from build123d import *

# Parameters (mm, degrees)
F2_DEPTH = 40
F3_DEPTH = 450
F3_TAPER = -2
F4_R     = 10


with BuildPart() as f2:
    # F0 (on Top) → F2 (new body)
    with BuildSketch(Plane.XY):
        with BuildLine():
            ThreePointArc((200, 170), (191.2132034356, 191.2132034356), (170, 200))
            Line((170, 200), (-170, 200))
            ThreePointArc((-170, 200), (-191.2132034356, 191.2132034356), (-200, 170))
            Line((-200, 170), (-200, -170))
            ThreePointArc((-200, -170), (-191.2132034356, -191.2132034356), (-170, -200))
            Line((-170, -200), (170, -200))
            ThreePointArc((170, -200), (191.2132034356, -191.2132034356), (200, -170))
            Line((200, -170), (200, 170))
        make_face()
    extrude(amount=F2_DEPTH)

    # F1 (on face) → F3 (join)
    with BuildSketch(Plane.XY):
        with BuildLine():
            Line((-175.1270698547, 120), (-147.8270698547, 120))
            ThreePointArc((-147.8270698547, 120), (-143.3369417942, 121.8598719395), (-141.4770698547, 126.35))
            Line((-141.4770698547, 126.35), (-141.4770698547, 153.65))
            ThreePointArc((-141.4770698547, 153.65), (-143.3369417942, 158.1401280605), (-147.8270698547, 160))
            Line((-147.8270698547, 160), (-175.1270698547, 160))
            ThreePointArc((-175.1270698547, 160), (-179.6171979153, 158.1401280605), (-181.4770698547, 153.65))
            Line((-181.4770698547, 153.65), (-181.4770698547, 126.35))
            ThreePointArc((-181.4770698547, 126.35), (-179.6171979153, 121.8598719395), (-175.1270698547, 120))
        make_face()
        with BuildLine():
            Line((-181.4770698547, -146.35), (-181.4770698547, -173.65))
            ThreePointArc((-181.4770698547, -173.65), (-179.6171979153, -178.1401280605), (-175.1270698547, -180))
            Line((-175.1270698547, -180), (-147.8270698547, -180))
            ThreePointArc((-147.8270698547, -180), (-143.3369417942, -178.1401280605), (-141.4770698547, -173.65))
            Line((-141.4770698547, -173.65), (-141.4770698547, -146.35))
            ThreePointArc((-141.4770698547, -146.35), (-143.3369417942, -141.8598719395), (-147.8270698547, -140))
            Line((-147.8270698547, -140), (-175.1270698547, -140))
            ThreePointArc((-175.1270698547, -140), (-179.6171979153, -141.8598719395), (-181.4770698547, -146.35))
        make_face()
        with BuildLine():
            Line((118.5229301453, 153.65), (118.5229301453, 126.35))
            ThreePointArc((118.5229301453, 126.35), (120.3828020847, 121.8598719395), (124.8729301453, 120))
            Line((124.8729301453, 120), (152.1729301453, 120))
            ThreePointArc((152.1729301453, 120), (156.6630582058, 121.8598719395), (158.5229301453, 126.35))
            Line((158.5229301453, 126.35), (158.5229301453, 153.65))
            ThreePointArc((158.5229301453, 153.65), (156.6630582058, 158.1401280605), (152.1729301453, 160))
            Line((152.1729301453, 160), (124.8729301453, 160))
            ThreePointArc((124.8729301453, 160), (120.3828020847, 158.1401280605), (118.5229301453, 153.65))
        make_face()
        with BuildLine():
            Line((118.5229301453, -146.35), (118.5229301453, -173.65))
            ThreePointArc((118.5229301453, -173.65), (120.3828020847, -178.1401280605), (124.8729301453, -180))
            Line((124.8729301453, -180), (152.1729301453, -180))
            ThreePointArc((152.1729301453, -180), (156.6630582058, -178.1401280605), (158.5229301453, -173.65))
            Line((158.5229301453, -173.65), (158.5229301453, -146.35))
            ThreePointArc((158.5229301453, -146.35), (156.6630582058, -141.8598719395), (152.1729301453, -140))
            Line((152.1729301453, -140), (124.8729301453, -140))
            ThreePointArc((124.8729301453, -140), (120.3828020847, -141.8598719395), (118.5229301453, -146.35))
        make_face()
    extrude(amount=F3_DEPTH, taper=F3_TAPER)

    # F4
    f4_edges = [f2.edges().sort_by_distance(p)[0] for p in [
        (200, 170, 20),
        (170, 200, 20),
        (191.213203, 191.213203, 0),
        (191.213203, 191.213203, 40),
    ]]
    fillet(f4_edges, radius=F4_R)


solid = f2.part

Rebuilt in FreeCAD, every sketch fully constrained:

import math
import FreeCAD as App
import Part
import Sketcher
from FreeCAD import Vector
Q = App.Units.Quantity


def edges_at(feature, points):
    """Names of the edges that pass closest to the given points."""
    edges = feature.Shape.Edges
    near = lambda p: min(range(len(edges)), key=lambda i: edges[i].distToShape(Part.Vertex(*p))[0])
    return sorted({f"Edge{near(p) + 1}" for p in points})

doc = App.newDocument("Part")
body = doc.addObject("PartDesign::Body", "Body")

# Sketch on XY plane
sketch1 = doc.addObject("Sketcher::SketchObject", "Sketch")
body.addObject(sketch1)
sketch1.AttachmentSupport = (doc.XY_Plane, [""])
sketch1.MapMode = "FlatFace"
sketch1.addGeometry(Part.ArcOfCircle(Part.Circle(Vector(170, 170, 0), Vector(0, 0, 1), 30), math.radians(0), math.radians(90)), False)
sketch1.addGeometry(Part.LineSegment(Vector(170, 200, 0), Vector(-170, 200, 0)), False)
sketch1.addGeometry(Part.ArcOfCircle(Part.Circle(Vector(-170, 170, 0), Vector(0, 0, 1), 30), math.radians(90), math.radians(180)), False)
sketch1.addGeometry(Part.LineSegment(Vector(-200, 170, 0), Vector(-200, -170, 0)), False)
sketch1.addGeometry(Part.ArcOfCircle(Part.Circle(Vector(-170, -170, 0), Vector(0, 0, 1), 30), math.radians(180), math.radians(270)), False)
sketch1.addGeometry(Part.LineSegment(Vector(-170, -200, 0), Vector(170, -200, 0)), False)
sketch1.addGeometry(Part.ArcOfCircle(Part.Circle(Vector(170, -170, 0), Vector(0, 0, 1), 30), math.radians(-90), math.radians(0)), False)
sketch1.addGeometry(Part.LineSegment(Vector(200, -170, 0), Vector(200, 170, 0)), False)
sketch1.addConstraint(Sketcher.Constraint("Tangent", 0, 2, 1, 1))
sketch1.addConstraint(Sketcher.Constraint("Tangent", 1, 2, 2, 1))
sketch1.addConstraint(Sketcher.Constraint("Tangent", 2, 2, 3, 1))
sketch1.addConstraint(Sketcher.Constraint("Tangent", 3, 2, 4, 1))
sketch1.addConstraint(Sketcher.Constraint("Tangent", 4, 2, 5, 1))
sketch1.addConstraint(Sketcher.Constraint("Tangent", 5, 2, 6, 1))
sketch1.addConstraint(Sketcher.Constraint("Tangent", 6, 2, 7, 1))
sketch1.addConstraint(Sketcher.Constraint("Tangent", 7, 2, 0, 1))
sketch1.addConstraint(Sketcher.Constraint("Horizontal", 1))
sketch1.addConstraint(Sketcher.Constraint("Vertical", 3))
sketch1.addConstraint(Sketcher.Constraint("Horizontal", 5))
sketch1.addConstraint(Sketcher.Constraint("Vertical", 7))
sketch1.addConstraint(Sketcher.Constraint("Equal", 0, 2))
sketch1.addConstraint(Sketcher.Constraint("Equal", 2, 4))
sketch1.addConstraint(Sketcher.Constraint("Equal", 4, 6))
sketch1.addConstraint(Sketcher.Constraint("Symmetric", 0, 3, 4, 3, -1, 1))
sketch1.addConstraint(Sketcher.Constraint("Equal", 5, 3))
sketch1.addConstraint(Sketcher.Constraint("Radius", 0, Q("30 mm")))
sketch1.addConstraint(Sketcher.Constraint("DistanceX", 1, 2, 1, 1, Q("340 mm")))
pad1 = doc.addObject("PartDesign::Pad", "Pad")
body.addObject(pad1)
pad1.Profile = sketch1
pad1.Length = 40

# Sketch on XY plane
sketch2 = doc.addObject("Sketcher::SketchObject", "Sketch001")
body.addObject(sketch2)
sketch2.AttachmentSupport = (doc.XY_Plane, [""])
sketch2.MapMode = "FlatFace"
sketch2.addGeometry(Part.LineSegment(Vector(-175, 120, 0), Vector(-148, 120, 0)), False)
sketch2.addGeometry(Part.ArcOfCircle(Part.Circle(Vector(-148, 126, 0), Vector(0, 0, 1), 6), math.radians(-90), math.radians(0)), False)
sketch2.addGeometry(Part.LineSegment(Vector(-141, 126, 0), Vector(-141, 154, 0)), False)
sketch2.addGeometry(Part.ArcOfCircle(Part.Circle(Vector(-148, 154, 0), Vector(0, 0, 1), 6), math.radians(0), math.radians(90)), False)
sketch2.addGeometry(Part.LineSegment(Vector(-148, 160, 0), Vector(-175, 160, 0)), False)
sketch2.addGeometry(Part.ArcOfCircle(Part.Circle(Vector(-175, 154, 0), Vector(0, 0, 1), 6), math.radians(90), math.radians(180)), False)
sketch2.addGeometry(Part.LineSegment(Vector(-181, 154, 0), Vector(-181, 126, 0)), False)
sketch2.addGeometry(Part.ArcOfCircle(Part.Circle(Vector(-175, 126, 0), Vector(0, 0, 1), 6), math.radians(180), math.radians(270)), False)
sketch2.addGeometry(Part.LineSegment(Vector(-181, -146, 0), Vector(-181, -174, 0)), False)
sketch2.addGeometry(Part.ArcOfCircle(Part.Circle(Vector(-175, -174, 0), Vector(0, 0, 1), 6), math.radians(180), math.radians(270)), False)
sketch2.addGeometry(Part.LineSegment(Vector(-175, -180, 0), Vector(-148, -180, 0)), False)
sketch2.addGeometry(Part.ArcOfCircle(Part.Circle(Vector(-148, -174, 0), Vector(0, 0, 1), 6), math.radians(-90), math.radians(0)), False)
sketch2.addGeometry(Part.LineSegment(Vector(-141, -174, 0), Vector(-141, -146, 0)), False)
sketch2.addGeometry(Part.ArcOfCircle(Part.Circle(Vector(-148, -146, 0), Vector(0, 0, 1), 6), math.radians(0), math.radians(90)), False)
sketch2.addGeometry(Part.LineSegment(Vector(-148, -140, 0), Vector(-175, -140, 0)), False)
sketch2.addGeometry(Part.ArcOfCircle(Part.Circle(Vector(-175, -146, 0), Vector(0, 0, 1), 6), math.radians(90), math.radians(180)), False)
sketch2.addGeometry(Part.LineSegment(Vector(119, 154, 0), Vector(119, 126, 0)), False)
sketch2.addGeometry(Part.ArcOfCircle(Part.Circle(Vector(125, 126, 0), Vector(0, 0, 1), 6), math.radians(180), math.radians(270)), False)
sketch2.addGeometry(Part.LineSegment(Vector(125, 120, 0), Vector(152, 120, 0)), False)
sketch2.addGeometry(Part.ArcOfCircle(Part.Circle(Vector(152, 126, 0), Vector(0, 0, 1), 6), math.radians(-90), math.radians(0)), False)
sketch2.addGeometry(Part.LineSegment(Vector(159, 126, 0), Vector(159, 154, 0)), False)
sketch2.addGeometry(Part.ArcOfCircle(Part.Circle(Vector(152, 154, 0), Vector(0, 0, 1), 6), math.radians(0), math.radians(90)), False)
sketch2.addGeometry(Part.LineSegment(Vector(152, 160, 0), Vector(125, 160, 0)), False)
sketch2.addGeometry(Part.ArcOfCircle(Part.Circle(Vector(125, 154, 0), Vector(0, 0, 1), 6), math.radians(90), math.radians(180)), False)
sketch2.addGeometry(Part.LineSegment(Vector(119, -146, 0), Vector(119, -174, 0)), False)
sketch2.addGeometry(Part.ArcOfCircle(Part.Circle(Vector(125, -174, 0), Vector(0, 0, 1), 6), math.radians(180), math.radians(270)), False)
sketch2.addGeometry(Part.LineSegment(Vector(125, -180, 0), Vector(152, -180, 0)), False)
sketch2.addGeometry(Part.ArcOfCircle(Part.Circle(Vector(152, -174, 0), Vector(0, 0, 1), 6), math.radians(-90), math.radians(0)), False)
sketch2.addGeometry(Part.LineSegment(Vector(159, -174, 0), Vector(159, -146, 0)), False)
sketch2.addGeometry(Part.ArcOfCircle(Part.Circle(Vector(152, -146, 0), Vector(0, 0, 1), 6), math.radians(0), math.radians(90)), False)
sketch2.addGeometry(Part.LineSegment(Vector(152, -140, 0), Vector(125, -140, 0)), False)
sketch2.addGeometry(Part.ArcOfCircle(Part.Circle(Vector(125, -146, 0), Vector(0, 0, 1), 6), math.radians(90), math.radians(180)), False)
sketch2.addConstraint(Sketcher.Constraint("Tangent", 0, 2, 1, 1))
sketch2.addConstraint(Sketcher.Constraint("Tangent", 1, 2, 2, 1))
sketch2.addConstraint(Sketcher.Constraint("Tangent", 2, 2, 3, 1))
sketch2.addConstraint(Sketcher.Constraint("Tangent", 3, 2, 4, 1))
sketch2.addConstraint(Sketcher.Constraint("Tangent", 4, 2, 5, 1))
sketch2.addConstraint(Sketcher.Constraint("Tangent", 5, 2, 6, 1))
sketch2.addConstraint(Sketcher.Constraint("Tangent", 6, 2, 7, 1))
sketch2.addConstraint(Sketcher.Constraint("Tangent", 7, 2, 0, 1))
sketch2.addConstraint(Sketcher.Constraint("Tangent", 8, 2, 9, 1))
sketch2.addConstraint(Sketcher.Constraint("Tangent", 9, 2, 10, 1))
sketch2.addConstraint(Sketcher.Constraint("Tangent", 10, 2, 11, 1))
sketch2.addConstraint(Sketcher.Constraint("Tangent", 11, 2, 12, 1))
sketch2.addConstraint(Sketcher.Constraint("Tangent", 12, 2, 13, 1))
sketch2.addConstraint(Sketcher.Constraint("Tangent", 13, 2, 14, 1))
sketch2.addConstraint(Sketcher.Constraint("Tangent", 14, 2, 15, 1))
sketch2.addConstraint(Sketcher.Constraint("Tangent", 15, 2, 8, 1))
sketch2.addConstraint(Sketcher.Constraint("Tangent", 16, 2, 17, 1))
sketch2.addConstraint(Sketcher.Constraint("Tangent", 17, 2, 18, 1))
sketch2.addConstraint(Sketcher.Constraint("Tangent", 18, 2, 19, 1))
sketch2.addConstraint(Sketcher.Constraint("Tangent", 19, 2, 20, 1))
sketch2.addConstraint(Sketcher.Constraint("Tangent", 20, 2, 21, 1))
sketch2.addConstraint(Sketcher.Constraint("Tangent", 21, 2, 22, 1))
sketch2.addConstraint(Sketcher.Constraint("Tangent", 22, 2, 23, 1))
sketch2.addConstraint(Sketcher.Constraint("Tangent", 23, 2, 16, 1))
sketch2.addConstraint(Sketcher.Constraint("Tangent", 24, 2, 25, 1))
sketch2.addConstraint(Sketcher.Constraint("Tangent", 25, 2, 26, 1))
sketch2.addConstraint(Sketcher.Constraint("Tangent", 26, 2, 27, 1))
sketch2.addConstraint(Sketcher.Constraint("Tangent", 27, 2, 28, 1))
sketch2.addConstraint(Sketcher.Constraint("Tangent", 28, 2, 29, 1))
sketch2.addConstraint(Sketcher.Constraint("Tangent", 29, 2, 30, 1))
sketch2.addConstraint(Sketcher.Constraint("Tangent", 30, 2, 31, 1))
sketch2.addConstraint(Sketcher.Constraint("Tangent", 31, 2, 24, 1))
sketch2.addConstraint(Sketcher.Constraint("Horizontal", 0))
sketch2.addConstraint(Sketcher.Constraint("Vertical", 2))
sketch2.addConstraint(Sketcher.Constraint("Horizontal", 4))
sketch2.addConstraint(Sketcher.Constraint("Vertical", 6))
sketch2.addConstraint(Sketcher.Constraint("Vertical", 8))
sketch2.addConstraint(Sketcher.Constraint("Horizontal", 10))
sketch2.addConstraint(Sketcher.Constraint("Vertical", 12))
sketch2.addConstraint(Sketcher.Constraint("Horizontal", 14))
sketch2.addConstraint(Sketcher.Constraint("Vertical", 16))
sketch2.addConstraint(Sketcher.Constraint("Horizontal", 18))
sketch2.addConstraint(Sketcher.Constraint("Vertical", 20))
sketch2.addConstraint(Sketcher.Constraint("Horizontal", 22))
sketch2.addConstraint(Sketcher.Constraint("Vertical", 24))
sketch2.addConstraint(Sketcher.Constraint("Horizontal", 26))
sketch2.addConstraint(Sketcher.Constraint("Vertical", 28))
sketch2.addConstraint(Sketcher.Constraint("Horizontal", 30))
sketch2.addConstraint(Sketcher.Constraint("Equal", 1, 3))
sketch2.addConstraint(Sketcher.Constraint("Equal", 3, 5))
sketch2.addConstraint(Sketcher.Constraint("Equal", 5, 7))
sketch2.addConstraint(Sketcher.Constraint("Equal", 7, 9))
sketch2.addConstraint(Sketcher.Constraint("Equal", 9, 11))
sketch2.addConstraint(Sketcher.Constraint("Equal", 11, 13))
sketch2.addConstraint(Sketcher.Constraint("Equal", 13, 15))
sketch2.addConstraint(Sketcher.Constraint("Equal", 15, 17))
sketch2.addConstraint(Sketcher.Constraint("Equal", 17, 19))
sketch2.addConstraint(Sketcher.Constraint("Equal", 19, 21))
sketch2.addConstraint(Sketcher.Constraint("Equal", 21, 23))
sketch2.addConstraint(Sketcher.Constraint("Equal", 23, 25))
sketch2.addConstraint(Sketcher.Constraint("Equal", 25, 27))
sketch2.addConstraint(Sketcher.Constraint("Equal", 27, 29))
sketch2.addConstraint(Sketcher.Constraint("Equal", 29, 31))
sketch2.addConstraint(Sketcher.Constraint("Horizontal", 7, 3, 17, 3))
sketch2.addConstraint(Sketcher.Constraint("Horizontal", 5, 3, 21, 3))
sketch2.addConstraint(Sketcher.Constraint("Horizontal", 11, 3, 25, 3))
sketch2.addConstraint(Sketcher.Constraint("Horizontal", 15, 3, 29, 3))
sketch2.addConstraint(Sketcher.Constraint("Vertical", 7, 3, 9, 3))
sketch2.addConstraint(Sketcher.Constraint("Vertical", 3, 3, 11, 3))
sketch2.addConstraint(Sketcher.Constraint("Vertical", 23, 3, 25, 3))
sketch2.addConstraint(Sketcher.Constraint("Vertical", 21, 3, 27, 3))
sketch2.addConstraint(Sketcher.Constraint("Equal", 14, 18))
sketch2.addConstraint(Sketcher.Constraint("Equal", 30, 2))
sketch2.addConstraint(Sketcher.Constraint("Equal", 6, 8))
sketch2.addConstraint(Sketcher.Constraint("Radius", 1, Q("6.35 mm")))
sketch2.addConstraint(Sketcher.Constraint("DistanceX", 0, 1, 0, 2, Q("27.3 mm")))
sketch2.addConstraint(Sketcher.Constraint("DistanceY", -1, 1, 0, 2, Q("120 mm")))
sketch2.addConstraint(Sketcher.Constraint("DistanceY", 9, 2, -1, 1, Q("180 mm")))
sketch2.addConstraint(Sketcher.Constraint("DistanceX", 7, 3, 17, 3, Q("300 mm")))
sketch2.addConstraint(Sketcher.Constraint("DistanceX", 1, 3, -1, 1, Q("147.82707 mm")))
pad2 = doc.addObject("PartDesign::Pad", "Pad001")
body.addObject(pad2)
pad2.Profile = sketch2
pad2.Length = 450
pad2.TaperAngle = 2
doc.recompute()

fillet = doc.addObject("PartDesign::Fillet", "Fillet")
body.addObject(fillet)
fillet.Base = (pad2, edges_at(pad2, [
    (200, 170, 20),
    (170, 200, 20),
    (191.213, 191.213, 0),
    (191.213, 191.213, 40),
]))
fillet.Radius = 10

doc.recompute()
